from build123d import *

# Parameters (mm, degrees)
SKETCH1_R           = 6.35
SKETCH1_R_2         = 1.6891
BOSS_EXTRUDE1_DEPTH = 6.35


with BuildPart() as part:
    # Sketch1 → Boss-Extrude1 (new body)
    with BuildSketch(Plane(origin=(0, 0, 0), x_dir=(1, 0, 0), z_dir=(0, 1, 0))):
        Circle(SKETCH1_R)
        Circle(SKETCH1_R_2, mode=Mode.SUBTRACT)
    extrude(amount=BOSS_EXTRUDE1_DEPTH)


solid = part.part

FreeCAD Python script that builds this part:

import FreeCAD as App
import Part
import Sketcher
Q = App.Units.Quantity

doc = App.newDocument("Part")
body = doc.addObject("PartDesign::Body", "Body")

# Sketch on XZ plane
sketch1 = body.newObject("Sketcher::SketchObject", "Sketch")
sketch1.AttachmentSupport = (doc.getObject("XZ_Plane"), [""])
sketch1.MapMode = "FlatFace"
sketch1.addGeometry([
    Part.Circle(App.Vector(0, 0, 0), App.Vector(0, 0, 1), 6.3),
    Part.Circle(App.Vector(0, 0, 0), App.Vector(0, 0, 1), 1.7),
], False)
sketch1.addConstraint([
    Sketcher.Constraint("Coincident", 0, 3, -1, 1),
    Sketcher.Constraint("Coincident", 1, 3, -1, 1),
    Sketcher.Constraint("Diameter", 0, Q("0.5 in")),
    Sketcher.Constraint("Diameter", 1, Q("0.133 in")),
])
pad1 = body.newObject("PartDesign::Pad", "Pad")
pad1.Profile = sketch1
pad1.Length = Q("0.25 in")
pad1.Reversed = True

doc.recompute()
